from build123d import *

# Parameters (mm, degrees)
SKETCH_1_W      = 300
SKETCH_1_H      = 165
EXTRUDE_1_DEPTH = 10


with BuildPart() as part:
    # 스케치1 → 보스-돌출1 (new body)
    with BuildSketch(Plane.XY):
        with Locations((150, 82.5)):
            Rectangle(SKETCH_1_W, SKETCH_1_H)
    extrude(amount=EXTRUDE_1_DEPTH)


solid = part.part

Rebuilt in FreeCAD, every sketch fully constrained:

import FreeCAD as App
import Part
import Sketcher

V = App.Vector
Q = App.Units.Quantity

doc = App.newDocument("Part")
body = doc.addObject("PartDesign::Body", "Body")

# Sketch on XY plane
sketch1 = body.newObject("Sketcher::SketchObject", "Sketch")
sketch1.AttachmentSupport = (doc.getObject("XY_Plane"), [""])
sketch1.MapMode = "FlatFace"
sketch1.addGeometry(Part.LineSegment(V(0, 165, 0), V(0, 0, 0)), False)
sketch1.addGeometry(Part.LineSegment(V(0, 0, 0), V(300, 0, 0)), False)
sketch1.addGeometry(Part.LineSegment(V(300, 0, 0), V(300, 165, 0)), False)
sketch1.addGeometry(Part.LineSegment(V(300, 165, 0), V(0, 165, 0)), False)
sketch1.addConstraint(Sketcher.Constraint("Coincident", 0, 2, 1, 1))
sketch1.addConstraint(Sketcher.Constraint("Coincident", 1, 2, 2, 1))
sketch1.addConstraint(Sketcher.Constraint("Coincident", 2, 2, 3, 1))
sketch1.addConstraint(Sketcher.Constraint("Coincident", 3, 2, 0, 1))
sketch1.addConstraint(Sketcher.Constraint("Vertical", 0))
sketch1.addConstraint(Sketcher.Constraint("Horizontal", 1))
sketch1.addConstraint(Sketcher.Constraint("Vertical", 2))
sketch1.addConstraint(Sketcher.Constraint("Horizontal", 3))
sketch1.addConstraint(Sketcher.Constraint("Coincident", 0, 2, -1, 1))
sketch1.addConstraint(Sketcher.Constraint("DistanceX", 1, 1, 1, 2, Q("300 mm")))
sketch1.addConstraint(Sketcher.Constraint("DistanceY", 0, 2, 0, 1, Q("165 mm")))
pad1 = body.newObject("PartDesign::Pad", "Pad")
pad1.Profile = sketch1
pad1.Length = 10

doc.recompute()
